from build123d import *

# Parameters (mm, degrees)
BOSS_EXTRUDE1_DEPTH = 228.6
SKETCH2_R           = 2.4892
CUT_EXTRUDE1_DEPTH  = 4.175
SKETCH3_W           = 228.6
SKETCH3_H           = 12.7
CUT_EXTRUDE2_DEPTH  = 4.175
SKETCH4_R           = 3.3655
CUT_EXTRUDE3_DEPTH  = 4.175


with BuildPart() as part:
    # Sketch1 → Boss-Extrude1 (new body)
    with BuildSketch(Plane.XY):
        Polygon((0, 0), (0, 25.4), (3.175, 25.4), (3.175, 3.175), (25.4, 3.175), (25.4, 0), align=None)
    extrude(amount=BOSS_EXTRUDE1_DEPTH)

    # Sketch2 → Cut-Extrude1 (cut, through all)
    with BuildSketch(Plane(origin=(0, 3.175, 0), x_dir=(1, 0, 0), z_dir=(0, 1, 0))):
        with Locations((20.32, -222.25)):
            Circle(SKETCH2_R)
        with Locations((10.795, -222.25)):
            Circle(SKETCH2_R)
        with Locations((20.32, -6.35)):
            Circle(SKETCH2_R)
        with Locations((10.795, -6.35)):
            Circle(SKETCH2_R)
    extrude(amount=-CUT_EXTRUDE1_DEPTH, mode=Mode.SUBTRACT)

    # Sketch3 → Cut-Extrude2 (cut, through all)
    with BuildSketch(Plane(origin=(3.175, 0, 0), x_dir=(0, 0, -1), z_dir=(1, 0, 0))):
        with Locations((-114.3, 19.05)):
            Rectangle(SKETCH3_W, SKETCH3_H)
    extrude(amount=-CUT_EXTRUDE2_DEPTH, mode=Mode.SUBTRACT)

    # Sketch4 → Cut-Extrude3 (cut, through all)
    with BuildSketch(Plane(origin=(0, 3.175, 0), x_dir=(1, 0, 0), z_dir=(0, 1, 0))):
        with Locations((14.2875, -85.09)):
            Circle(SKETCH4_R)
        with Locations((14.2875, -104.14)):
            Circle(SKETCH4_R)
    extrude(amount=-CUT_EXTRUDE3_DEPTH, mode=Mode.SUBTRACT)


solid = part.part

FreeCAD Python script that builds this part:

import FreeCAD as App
import Part
import Sketcher
Q = App.Units.Quantity

doc = App.newDocument("Part")
params = doc.addObject("Spreadsheet::Sheet", "Params")
for row, (alias, value) in enumerate([
    ("sketch1_width", "1 in"),
    ("sketch1_width2", "0.875 in"),
    ("pad1_length", "9 in"),
    ("sketch2_diameter", "0.196 in"),
    ("sketch3_height", "9 in"),
    ("sketch3_width", "0.5 in"),
    ("sketch4_diameter", "0.265 in"),
], start=1):
    params.set(f"A{row}", alias)
    params.set(f"B{row}", "=" + value)
    params.setAlias(f"B{row}", alias)

body = doc.addObject("PartDesign::Body", "Body")

sketch1 = doc.addObject("Sketcher::SketchObject", "Sketch")
body.addObject(sketch1)
sketch1.AttachmentSupport = (doc.XY_Plane, [""])
sketch1.MapMode = "FlatFace"
sketch1.addGeometry(Part.LineSegment(App.Vector(0, 25.4, 0), App.Vector(0, 0, 0)), False)
sketch1.addGeometry(Part.LineSegment(App.Vector(0, 0, 0), App.Vector(25.4, 0, 0)), False)
sketch1.addGeometry(Part.LineSegment(App.Vector(25.4, 0, 0), App.Vector(25.4, 3.2, 0)), False)
sketch1.addGeometry(Part.LineSegment(App.Vector(25.4, 3.2, 0), App.Vector(3.2, 3.2, 0)), False)
sketch1.addGeometry(Part.LineSegment(App.Vector(3.2, 3.2, 0), App.Vector(3.2, 25.4, 0)), False)
sketch1.addGeometry(Part.LineSegment(App.Vector(3.2, 25.4, 0), App.Vector(0, 25.4, 0)), False)
sketch1.addConstraint(Sketcher.Constraint("Coincident", 0, 2, 1, 1))
sketch1.addConstraint(Sketcher.Constraint("Coincident", 1, 2, 2, 1))
sketch1.addConstraint(Sketcher.Constraint("Coincident", 2, 2, 3, 1))
sketch1.addConstraint(Sketcher.Constraint("Coincident", 3, 2, 4, 1))
sketch1.addConstraint(Sketcher.Constraint("Coincident", 4, 2, 5, 1))
sketch1.addConstraint(Sketcher.Constraint("Coincident", 5, 2, 0, 1))
sketch1.addConstraint(Sketcher.Constraint("Vertical", 0))
sketch1.addConstraint(Sketcher.Constraint("Horizontal", 1))
sketch1.addConstraint(Sketcher.Constraint("Vertical", 2))
sketch1.addConstraint(Sketcher.Constraint("Horizontal", 3))
sketch1.addConstraint(Sketcher.Constraint("Vertical", 4))
sketch1.addConstraint(Sketcher.Constraint("Horizontal", 5))
sketch1.addConstraint(Sketcher.Constraint("Coincident", 0, 2, -1, 1))
sketch1.addConstraint(Sketcher.Constraint("Equal", 1, 0))
sketch1.addConstraint(Sketcher.Constraint("Equal", 5, 2))
sketch1.addConstraint(Sketcher.Constraint("DistanceX", 1, 1, 1, 2, Q("1 in")))
sketch1.addConstraint(Sketcher.Constraint("DistanceX", 3, 2, 3, 1, Q("0.875 in")))
sketch1.setExpression("Constraints[15]", "Params.sketch1_width")
sketch1.setExpression("Constraints[16]", "Params.sketch1_width2")
pad1 = doc.addObject("PartDesign::Pad", "Pad")
body.addObject(pad1)
pad1.Profile = sketch1
pad1.setExpression("Length", "Params.pad1_length")

sketch2 = doc.addObject("Sketcher::SketchObject", "Sketch001")
body.addObject(sketch2)
sketch2.AttachmentSupport = (doc.XZ_Plane, [""])
sketch2.MapMode = "FlatFace"
sketch2.AttachmentOffset = App.Placement(App.Vector(0, 0, -0.125 * 25.4), App.Rotation())
sketch2.addGeometry(Part.Circle(App.Vector(20.3, 222.2, 0), App.Vector(0, 0, 1), 2.5), False)
sketch2.addGeometry(Part.Circle(App.Vector(10.8, 222.2, 0), App.Vector(0, 0, 1), 2.5), False)
sketch2.addGeometry(Part.Circle(App.Vector(20.3, 6.3, 0), App.Vector(0, 0, 1), 2.5), False)
sketch2.addGeometry(Part.Circle(App.Vector(10.8, 6.3, 0), App.Vector(0, 0, 1), 2.5), False)
sketch2.addConstraint(Sketcher.Constraint("Equal", 0, 1))
sketch2.addConstraint(Sketcher.Constraint("Equal", 1, 2))
sketch2.addConstraint(Sketcher.Constraint("Equal", 2, 3))
sketch2.addConstraint(Sketcher.Constraint("Horizontal", 0, 3, 1, 3))
sketch2.addConstraint(Sketcher.Constraint("Horizontal", 2, 3, 3, 3))
sketch2.addConstraint(Sketcher.Constraint("Vertical", 0, 3, 2, 3))
sketch2.addConstraint(Sketcher.Constraint("Vertical", 1, 3, 3, 3))
sketch2.addConstraint(Sketcher.Constraint("Diameter", 0, Q("0.196 in")))
sketch2.addConstraint(Sketcher.Constraint("DistanceX", -1, 1, 0, 3, Q("0.8 in")))
sketch2.addConstraint(Sketcher.Constraint("DistanceY", 2, 3, 0, 3, Q("8.5 in")))
sketch2.addConstraint(Sketcher.Constraint("DistanceY", -1, 1, 0, 3, Q("8.75 in")))
sketch2.addConstraint(Sketcher.Constraint("DistanceX", -1, 1, 1, 3, Q("0.425 in")))
sketch2.setExpression("Constraints[7]", "Params.sketch2_diameter")
pocket1 = doc.addObject("PartDesign::Pocket", "Pocket")
body.addObject(pocket1)
pocket1.Profile = sketch2
pocket1.Type = "ThroughAll"
pocket1.Reversed = True

sketch3 = doc.addObject("Sketcher::SketchObject", "Sketch002")
body.addObject(sketch3)
sketch3.AttachmentSupport = (doc.YZ_Plane, [""])
sketch3.MapMode = "FlatFace"
sketch3.AttachmentOffset = App.Placement(App.Vector(0, 0, 0.125 * 25.4), App.Rotation())
sketch3.addGeometry(Part.LineSegment(App.Vector(25, 229, 0), App.Vector(13, 229, 0)), False)
sketch3.addGeometry(Part.LineSegment(App.Vector(13, 229, 0), App.Vector(13, 0, 0)), False)
sketch3.addGeometry(Part.LineSegment(App.Vector(13, 0, 0), App.Vector(25, 0, 0)), False)
sketch3.addGeometry(Part.LineSegment(App.Vector(25, 0, 0), App.Vector(25, 229, 0)), False)
sketch3.addConstraint(Sketcher.Constraint("Coincident", 0, 2, 1, 1))
sketch3.addConstraint(Sketcher.Constraint("Coincident", 1, 2, 2, 1))
sketch3.addConstraint(Sketcher.Constraint("Coincident", 2, 2, 3, 1))
sketch3.addConstraint(Sketcher.Constraint("Coincident", 3, 2, 0, 1))
sketch3.addConstraint(Sketcher.Constraint("Horizontal", 0))
sketch3.addConstraint(Sketcher.Constraint("Vertical", 1))
sketch3.addConstraint(Sketcher.Constraint("Horizontal", 2))
sketch3.addConstraint(Sketcher.Constraint("Vertical", 3))
sketch3.addConstraint(Sketcher.Constraint("PointOnObject", 1, 2, -1))
sketch3.addConstraint(Sketcher.Constraint("DistanceY", 1, 2, 1, 1, Q("9 in")))
sketch3.addConstraint(Sketcher.Constraint("DistanceX", 0, 2, 0, 1, Q("0.5 in")))
sketch3.addConstraint(Sketcher.Constraint("DistanceX", -1, 1, 2, 2, Q("1 in")))
sketch3.setExpression("Constraints[9]", "Params.sketch3_height")
sketch3.setExpression("Constraints[10]", "Params.sketch3_width")
pocket2 = doc.addObject("PartDesign::Pocket", "Pocket001")
body.addObject(pocket2)
pocket2.Profile = sketch3
pocket2.Type = "ThroughAll"

sketch4 = doc.addObject("Sketcher::SketchObject", "Sketch003")
body.addObject(sketch4)
sketch4.AttachmentSupport = (doc.XZ_Plane, [""])
sketch4.MapMode = "FlatFace"
sketch4.AttachmentOffset = App.Placement(App.Vector(0, 0, -0.125 * 25.4), App.Rotation())
sketch4.addGeometry(Part.Circle(App.Vector(14.3, 85.1, 0), App.Vector(0, 0, 1), 3.4), False)
sketch4.addGeometry(Part.Circle(App.Vector(14.3, 104.1, 0), App.Vector(0, 0, 1), 3.4), False)
sketch4.addConstraint(Sketcher.Constraint("Equal", 0, 1))
sketch4.addConstraint(Sketcher.Constraint("Vertical", 0, 3, 1, 3))
sketch4.addConstraint(Sketcher.Constraint("Diameter", 0, Q("0.265 in")))
sketch4.addConstraint(Sketcher.Constraint("DistanceY", -1, 1, 1, 3, Q("4.1 in")))
sketch4.addConstraint(Sketcher.Constraint("DistanceY", -1, 1, 0, 3, Q("3.35 in")))
sketch4.addConstraint(Sketcher.Constraint("DistanceX", -1, 1, 0, 3, Q("0.5625 in")))
sketch4.setExpression("Constraints[2]", "Params.sketch4_diameter")
pocket3 = doc.addObject("PartDesign::Pocket", "Pocket002")
body.addObject(pocket3)
pocket3.Profile = sketch4
pocket3.Type = "ThroughAll"
pocket3.Reversed = True

doc.recompute()
